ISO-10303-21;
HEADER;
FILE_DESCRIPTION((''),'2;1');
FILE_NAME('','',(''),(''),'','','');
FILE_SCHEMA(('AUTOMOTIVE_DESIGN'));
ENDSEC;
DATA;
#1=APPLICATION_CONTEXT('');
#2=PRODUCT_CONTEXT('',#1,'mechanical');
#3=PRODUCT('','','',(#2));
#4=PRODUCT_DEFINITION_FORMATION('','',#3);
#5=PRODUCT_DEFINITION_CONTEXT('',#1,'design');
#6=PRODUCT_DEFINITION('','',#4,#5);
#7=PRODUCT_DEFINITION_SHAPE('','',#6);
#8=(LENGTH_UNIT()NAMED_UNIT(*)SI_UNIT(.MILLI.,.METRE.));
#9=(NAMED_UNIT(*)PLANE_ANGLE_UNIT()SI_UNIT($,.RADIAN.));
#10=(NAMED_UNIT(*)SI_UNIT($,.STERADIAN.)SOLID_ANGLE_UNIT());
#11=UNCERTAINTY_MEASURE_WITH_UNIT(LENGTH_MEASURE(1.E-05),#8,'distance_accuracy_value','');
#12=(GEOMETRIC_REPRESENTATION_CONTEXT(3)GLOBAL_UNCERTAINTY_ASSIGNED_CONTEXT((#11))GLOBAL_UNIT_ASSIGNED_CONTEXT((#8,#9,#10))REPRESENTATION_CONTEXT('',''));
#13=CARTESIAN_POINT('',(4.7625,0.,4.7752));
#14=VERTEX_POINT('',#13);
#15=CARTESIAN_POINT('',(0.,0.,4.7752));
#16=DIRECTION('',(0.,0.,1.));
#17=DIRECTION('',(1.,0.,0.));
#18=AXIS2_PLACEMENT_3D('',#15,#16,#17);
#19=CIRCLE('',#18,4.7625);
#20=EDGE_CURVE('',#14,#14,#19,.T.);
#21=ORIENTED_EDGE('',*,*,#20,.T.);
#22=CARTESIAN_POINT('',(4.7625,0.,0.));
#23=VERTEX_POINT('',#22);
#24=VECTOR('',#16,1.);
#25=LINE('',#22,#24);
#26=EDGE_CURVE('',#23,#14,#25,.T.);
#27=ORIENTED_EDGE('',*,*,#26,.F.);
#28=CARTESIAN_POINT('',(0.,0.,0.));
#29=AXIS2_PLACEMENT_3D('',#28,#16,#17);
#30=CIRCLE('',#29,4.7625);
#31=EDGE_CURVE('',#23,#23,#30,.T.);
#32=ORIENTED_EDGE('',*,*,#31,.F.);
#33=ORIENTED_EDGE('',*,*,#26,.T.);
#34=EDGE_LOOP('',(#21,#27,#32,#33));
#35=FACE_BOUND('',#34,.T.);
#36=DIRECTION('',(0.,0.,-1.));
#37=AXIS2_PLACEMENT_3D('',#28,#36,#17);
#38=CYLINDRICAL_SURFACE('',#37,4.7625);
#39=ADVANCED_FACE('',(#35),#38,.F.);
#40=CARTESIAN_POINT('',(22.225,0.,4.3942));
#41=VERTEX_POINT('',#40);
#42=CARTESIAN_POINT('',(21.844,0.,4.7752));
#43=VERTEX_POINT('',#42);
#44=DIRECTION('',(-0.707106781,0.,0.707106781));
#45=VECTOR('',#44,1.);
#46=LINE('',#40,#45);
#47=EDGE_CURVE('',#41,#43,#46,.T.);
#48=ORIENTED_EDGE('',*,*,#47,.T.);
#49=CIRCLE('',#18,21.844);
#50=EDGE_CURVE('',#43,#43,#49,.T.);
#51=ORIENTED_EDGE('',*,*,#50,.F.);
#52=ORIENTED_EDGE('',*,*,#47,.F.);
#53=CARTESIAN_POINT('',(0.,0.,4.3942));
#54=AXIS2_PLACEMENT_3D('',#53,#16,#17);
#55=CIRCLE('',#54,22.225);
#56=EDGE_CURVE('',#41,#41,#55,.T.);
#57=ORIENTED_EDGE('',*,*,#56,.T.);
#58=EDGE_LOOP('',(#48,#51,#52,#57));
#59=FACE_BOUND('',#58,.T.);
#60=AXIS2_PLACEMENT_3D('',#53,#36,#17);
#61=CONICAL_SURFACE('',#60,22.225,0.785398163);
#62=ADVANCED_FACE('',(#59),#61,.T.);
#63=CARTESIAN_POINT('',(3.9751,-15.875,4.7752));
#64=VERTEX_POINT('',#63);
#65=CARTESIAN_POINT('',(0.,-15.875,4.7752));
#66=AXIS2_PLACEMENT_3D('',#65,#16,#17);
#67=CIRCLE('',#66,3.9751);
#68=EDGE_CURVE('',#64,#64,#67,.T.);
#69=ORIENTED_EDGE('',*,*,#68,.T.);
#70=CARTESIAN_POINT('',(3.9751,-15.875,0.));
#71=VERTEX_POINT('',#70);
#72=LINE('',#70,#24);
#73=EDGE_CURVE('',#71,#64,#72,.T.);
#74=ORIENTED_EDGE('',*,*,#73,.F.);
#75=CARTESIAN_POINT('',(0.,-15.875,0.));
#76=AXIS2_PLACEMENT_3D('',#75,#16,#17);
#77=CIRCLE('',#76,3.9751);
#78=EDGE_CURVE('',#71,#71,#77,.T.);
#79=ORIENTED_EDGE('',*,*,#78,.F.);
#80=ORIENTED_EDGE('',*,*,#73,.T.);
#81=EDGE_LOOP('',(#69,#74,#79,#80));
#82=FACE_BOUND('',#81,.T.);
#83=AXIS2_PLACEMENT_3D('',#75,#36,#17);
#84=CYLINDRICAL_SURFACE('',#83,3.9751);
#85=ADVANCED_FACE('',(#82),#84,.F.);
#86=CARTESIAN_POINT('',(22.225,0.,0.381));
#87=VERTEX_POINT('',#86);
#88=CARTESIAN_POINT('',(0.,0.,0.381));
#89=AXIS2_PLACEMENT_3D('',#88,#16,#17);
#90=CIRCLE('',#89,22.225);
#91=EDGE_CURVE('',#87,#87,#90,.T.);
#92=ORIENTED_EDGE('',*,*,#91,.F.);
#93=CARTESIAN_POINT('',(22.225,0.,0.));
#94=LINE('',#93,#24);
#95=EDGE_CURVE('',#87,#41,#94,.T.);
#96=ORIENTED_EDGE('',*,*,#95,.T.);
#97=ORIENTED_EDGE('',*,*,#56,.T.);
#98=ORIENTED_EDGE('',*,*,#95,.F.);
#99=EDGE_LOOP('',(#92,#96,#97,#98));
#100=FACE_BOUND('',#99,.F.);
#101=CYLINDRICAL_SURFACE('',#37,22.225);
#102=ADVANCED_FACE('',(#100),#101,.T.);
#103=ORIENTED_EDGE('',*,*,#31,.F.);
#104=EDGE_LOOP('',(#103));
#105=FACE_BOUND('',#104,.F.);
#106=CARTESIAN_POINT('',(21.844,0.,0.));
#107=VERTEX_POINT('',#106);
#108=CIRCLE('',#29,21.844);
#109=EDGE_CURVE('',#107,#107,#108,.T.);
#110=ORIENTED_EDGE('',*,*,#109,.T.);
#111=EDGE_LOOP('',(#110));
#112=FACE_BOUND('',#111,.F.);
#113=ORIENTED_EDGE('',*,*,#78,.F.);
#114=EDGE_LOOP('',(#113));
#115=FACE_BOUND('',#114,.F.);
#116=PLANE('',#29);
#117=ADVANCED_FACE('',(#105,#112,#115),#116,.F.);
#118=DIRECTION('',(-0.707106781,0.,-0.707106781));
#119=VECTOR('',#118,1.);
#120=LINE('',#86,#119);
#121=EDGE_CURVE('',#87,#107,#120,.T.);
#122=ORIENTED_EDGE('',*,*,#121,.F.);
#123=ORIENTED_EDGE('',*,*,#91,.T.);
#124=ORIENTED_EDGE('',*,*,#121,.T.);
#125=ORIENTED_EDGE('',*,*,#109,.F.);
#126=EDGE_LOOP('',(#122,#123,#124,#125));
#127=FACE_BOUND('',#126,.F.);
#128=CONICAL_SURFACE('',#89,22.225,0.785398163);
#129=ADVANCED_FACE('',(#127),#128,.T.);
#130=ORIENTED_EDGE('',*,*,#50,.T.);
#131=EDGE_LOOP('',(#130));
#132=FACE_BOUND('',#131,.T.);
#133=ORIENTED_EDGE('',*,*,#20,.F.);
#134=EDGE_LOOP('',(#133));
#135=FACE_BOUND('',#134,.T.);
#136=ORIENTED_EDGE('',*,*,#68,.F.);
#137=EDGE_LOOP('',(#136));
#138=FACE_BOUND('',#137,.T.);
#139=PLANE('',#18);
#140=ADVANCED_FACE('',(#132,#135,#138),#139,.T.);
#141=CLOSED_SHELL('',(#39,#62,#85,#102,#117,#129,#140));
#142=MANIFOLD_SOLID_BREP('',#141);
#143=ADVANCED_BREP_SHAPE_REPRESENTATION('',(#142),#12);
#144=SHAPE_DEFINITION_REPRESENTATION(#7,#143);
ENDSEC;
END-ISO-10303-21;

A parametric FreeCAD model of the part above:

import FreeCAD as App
import Part
import Sketcher

V = App.Vector
Q = App.Units.Quantity


def edges_at(feature, points):
    """Names of the edges that pass closest to the given points."""
    edges = feature.Shape.Edges
    near = lambda p: min(range(len(edges)), key=lambda i: edges[i].distToShape(Part.Vertex(*p))[0])
    return sorted({f"Edge{near(p) + 1}" for p in points})

doc = App.newDocument("Part")
body = doc.addObject("PartDesign::Body", "Body")

sketch1 = doc.addObject("Sketcher::SketchObject", "Sketch")
body.addObject(sketch1)
sketch1.AttachmentSupport = (doc.XY_Plane, [""])
sketch1.MapMode = "FlatFace"
sketch1.addGeometry([
    Part.Circle(V(0, 0, 0), V(0, 0, 1), 22.225),
    Part.Circle(V(0, -15.875, 0), V(0, 0, 1), 3.9751),
    Part.Circle(V(0, 0, 0), V(0, 0, 1), 4.7625),
], False)
sketch1.addConstraint([
    Sketcher.Constraint("Coincident", 0, 3, -1, 1),
    Sketcher.Constraint("Coincident", 2, 3, -1, 1),
    Sketcher.Constraint("PointOnObject", 1, 3, -2),
    Sketcher.Constraint("Diameter", 0, Q("1.75 in")),
    Sketcher.Constraint("Diameter", 1, Q("0.313 in")),
    Sketcher.Constraint("Diameter", 2, Q("0.375 in")),
    Sketcher.Constraint("DistanceY", 1, 3, -1, 1, Q("0.625 in")),
])
pad1 = doc.addObject("PartDesign::Pad", "Pad")
body.addObject(pad1)
pad1.Profile = sketch1
pad1.Length = Q("0.188 in")
doc.recompute()

chamfer = doc.addObject("PartDesign::Chamfer", "Chamfer")
body.addObject(chamfer)
chamfer.Base = (pad1, edges_at(pad1, [(-22.225, 0, 4.775), (-22.225, 0, 0)]))
chamfer.Size = Q("0.015 in")

doc.recompute()
